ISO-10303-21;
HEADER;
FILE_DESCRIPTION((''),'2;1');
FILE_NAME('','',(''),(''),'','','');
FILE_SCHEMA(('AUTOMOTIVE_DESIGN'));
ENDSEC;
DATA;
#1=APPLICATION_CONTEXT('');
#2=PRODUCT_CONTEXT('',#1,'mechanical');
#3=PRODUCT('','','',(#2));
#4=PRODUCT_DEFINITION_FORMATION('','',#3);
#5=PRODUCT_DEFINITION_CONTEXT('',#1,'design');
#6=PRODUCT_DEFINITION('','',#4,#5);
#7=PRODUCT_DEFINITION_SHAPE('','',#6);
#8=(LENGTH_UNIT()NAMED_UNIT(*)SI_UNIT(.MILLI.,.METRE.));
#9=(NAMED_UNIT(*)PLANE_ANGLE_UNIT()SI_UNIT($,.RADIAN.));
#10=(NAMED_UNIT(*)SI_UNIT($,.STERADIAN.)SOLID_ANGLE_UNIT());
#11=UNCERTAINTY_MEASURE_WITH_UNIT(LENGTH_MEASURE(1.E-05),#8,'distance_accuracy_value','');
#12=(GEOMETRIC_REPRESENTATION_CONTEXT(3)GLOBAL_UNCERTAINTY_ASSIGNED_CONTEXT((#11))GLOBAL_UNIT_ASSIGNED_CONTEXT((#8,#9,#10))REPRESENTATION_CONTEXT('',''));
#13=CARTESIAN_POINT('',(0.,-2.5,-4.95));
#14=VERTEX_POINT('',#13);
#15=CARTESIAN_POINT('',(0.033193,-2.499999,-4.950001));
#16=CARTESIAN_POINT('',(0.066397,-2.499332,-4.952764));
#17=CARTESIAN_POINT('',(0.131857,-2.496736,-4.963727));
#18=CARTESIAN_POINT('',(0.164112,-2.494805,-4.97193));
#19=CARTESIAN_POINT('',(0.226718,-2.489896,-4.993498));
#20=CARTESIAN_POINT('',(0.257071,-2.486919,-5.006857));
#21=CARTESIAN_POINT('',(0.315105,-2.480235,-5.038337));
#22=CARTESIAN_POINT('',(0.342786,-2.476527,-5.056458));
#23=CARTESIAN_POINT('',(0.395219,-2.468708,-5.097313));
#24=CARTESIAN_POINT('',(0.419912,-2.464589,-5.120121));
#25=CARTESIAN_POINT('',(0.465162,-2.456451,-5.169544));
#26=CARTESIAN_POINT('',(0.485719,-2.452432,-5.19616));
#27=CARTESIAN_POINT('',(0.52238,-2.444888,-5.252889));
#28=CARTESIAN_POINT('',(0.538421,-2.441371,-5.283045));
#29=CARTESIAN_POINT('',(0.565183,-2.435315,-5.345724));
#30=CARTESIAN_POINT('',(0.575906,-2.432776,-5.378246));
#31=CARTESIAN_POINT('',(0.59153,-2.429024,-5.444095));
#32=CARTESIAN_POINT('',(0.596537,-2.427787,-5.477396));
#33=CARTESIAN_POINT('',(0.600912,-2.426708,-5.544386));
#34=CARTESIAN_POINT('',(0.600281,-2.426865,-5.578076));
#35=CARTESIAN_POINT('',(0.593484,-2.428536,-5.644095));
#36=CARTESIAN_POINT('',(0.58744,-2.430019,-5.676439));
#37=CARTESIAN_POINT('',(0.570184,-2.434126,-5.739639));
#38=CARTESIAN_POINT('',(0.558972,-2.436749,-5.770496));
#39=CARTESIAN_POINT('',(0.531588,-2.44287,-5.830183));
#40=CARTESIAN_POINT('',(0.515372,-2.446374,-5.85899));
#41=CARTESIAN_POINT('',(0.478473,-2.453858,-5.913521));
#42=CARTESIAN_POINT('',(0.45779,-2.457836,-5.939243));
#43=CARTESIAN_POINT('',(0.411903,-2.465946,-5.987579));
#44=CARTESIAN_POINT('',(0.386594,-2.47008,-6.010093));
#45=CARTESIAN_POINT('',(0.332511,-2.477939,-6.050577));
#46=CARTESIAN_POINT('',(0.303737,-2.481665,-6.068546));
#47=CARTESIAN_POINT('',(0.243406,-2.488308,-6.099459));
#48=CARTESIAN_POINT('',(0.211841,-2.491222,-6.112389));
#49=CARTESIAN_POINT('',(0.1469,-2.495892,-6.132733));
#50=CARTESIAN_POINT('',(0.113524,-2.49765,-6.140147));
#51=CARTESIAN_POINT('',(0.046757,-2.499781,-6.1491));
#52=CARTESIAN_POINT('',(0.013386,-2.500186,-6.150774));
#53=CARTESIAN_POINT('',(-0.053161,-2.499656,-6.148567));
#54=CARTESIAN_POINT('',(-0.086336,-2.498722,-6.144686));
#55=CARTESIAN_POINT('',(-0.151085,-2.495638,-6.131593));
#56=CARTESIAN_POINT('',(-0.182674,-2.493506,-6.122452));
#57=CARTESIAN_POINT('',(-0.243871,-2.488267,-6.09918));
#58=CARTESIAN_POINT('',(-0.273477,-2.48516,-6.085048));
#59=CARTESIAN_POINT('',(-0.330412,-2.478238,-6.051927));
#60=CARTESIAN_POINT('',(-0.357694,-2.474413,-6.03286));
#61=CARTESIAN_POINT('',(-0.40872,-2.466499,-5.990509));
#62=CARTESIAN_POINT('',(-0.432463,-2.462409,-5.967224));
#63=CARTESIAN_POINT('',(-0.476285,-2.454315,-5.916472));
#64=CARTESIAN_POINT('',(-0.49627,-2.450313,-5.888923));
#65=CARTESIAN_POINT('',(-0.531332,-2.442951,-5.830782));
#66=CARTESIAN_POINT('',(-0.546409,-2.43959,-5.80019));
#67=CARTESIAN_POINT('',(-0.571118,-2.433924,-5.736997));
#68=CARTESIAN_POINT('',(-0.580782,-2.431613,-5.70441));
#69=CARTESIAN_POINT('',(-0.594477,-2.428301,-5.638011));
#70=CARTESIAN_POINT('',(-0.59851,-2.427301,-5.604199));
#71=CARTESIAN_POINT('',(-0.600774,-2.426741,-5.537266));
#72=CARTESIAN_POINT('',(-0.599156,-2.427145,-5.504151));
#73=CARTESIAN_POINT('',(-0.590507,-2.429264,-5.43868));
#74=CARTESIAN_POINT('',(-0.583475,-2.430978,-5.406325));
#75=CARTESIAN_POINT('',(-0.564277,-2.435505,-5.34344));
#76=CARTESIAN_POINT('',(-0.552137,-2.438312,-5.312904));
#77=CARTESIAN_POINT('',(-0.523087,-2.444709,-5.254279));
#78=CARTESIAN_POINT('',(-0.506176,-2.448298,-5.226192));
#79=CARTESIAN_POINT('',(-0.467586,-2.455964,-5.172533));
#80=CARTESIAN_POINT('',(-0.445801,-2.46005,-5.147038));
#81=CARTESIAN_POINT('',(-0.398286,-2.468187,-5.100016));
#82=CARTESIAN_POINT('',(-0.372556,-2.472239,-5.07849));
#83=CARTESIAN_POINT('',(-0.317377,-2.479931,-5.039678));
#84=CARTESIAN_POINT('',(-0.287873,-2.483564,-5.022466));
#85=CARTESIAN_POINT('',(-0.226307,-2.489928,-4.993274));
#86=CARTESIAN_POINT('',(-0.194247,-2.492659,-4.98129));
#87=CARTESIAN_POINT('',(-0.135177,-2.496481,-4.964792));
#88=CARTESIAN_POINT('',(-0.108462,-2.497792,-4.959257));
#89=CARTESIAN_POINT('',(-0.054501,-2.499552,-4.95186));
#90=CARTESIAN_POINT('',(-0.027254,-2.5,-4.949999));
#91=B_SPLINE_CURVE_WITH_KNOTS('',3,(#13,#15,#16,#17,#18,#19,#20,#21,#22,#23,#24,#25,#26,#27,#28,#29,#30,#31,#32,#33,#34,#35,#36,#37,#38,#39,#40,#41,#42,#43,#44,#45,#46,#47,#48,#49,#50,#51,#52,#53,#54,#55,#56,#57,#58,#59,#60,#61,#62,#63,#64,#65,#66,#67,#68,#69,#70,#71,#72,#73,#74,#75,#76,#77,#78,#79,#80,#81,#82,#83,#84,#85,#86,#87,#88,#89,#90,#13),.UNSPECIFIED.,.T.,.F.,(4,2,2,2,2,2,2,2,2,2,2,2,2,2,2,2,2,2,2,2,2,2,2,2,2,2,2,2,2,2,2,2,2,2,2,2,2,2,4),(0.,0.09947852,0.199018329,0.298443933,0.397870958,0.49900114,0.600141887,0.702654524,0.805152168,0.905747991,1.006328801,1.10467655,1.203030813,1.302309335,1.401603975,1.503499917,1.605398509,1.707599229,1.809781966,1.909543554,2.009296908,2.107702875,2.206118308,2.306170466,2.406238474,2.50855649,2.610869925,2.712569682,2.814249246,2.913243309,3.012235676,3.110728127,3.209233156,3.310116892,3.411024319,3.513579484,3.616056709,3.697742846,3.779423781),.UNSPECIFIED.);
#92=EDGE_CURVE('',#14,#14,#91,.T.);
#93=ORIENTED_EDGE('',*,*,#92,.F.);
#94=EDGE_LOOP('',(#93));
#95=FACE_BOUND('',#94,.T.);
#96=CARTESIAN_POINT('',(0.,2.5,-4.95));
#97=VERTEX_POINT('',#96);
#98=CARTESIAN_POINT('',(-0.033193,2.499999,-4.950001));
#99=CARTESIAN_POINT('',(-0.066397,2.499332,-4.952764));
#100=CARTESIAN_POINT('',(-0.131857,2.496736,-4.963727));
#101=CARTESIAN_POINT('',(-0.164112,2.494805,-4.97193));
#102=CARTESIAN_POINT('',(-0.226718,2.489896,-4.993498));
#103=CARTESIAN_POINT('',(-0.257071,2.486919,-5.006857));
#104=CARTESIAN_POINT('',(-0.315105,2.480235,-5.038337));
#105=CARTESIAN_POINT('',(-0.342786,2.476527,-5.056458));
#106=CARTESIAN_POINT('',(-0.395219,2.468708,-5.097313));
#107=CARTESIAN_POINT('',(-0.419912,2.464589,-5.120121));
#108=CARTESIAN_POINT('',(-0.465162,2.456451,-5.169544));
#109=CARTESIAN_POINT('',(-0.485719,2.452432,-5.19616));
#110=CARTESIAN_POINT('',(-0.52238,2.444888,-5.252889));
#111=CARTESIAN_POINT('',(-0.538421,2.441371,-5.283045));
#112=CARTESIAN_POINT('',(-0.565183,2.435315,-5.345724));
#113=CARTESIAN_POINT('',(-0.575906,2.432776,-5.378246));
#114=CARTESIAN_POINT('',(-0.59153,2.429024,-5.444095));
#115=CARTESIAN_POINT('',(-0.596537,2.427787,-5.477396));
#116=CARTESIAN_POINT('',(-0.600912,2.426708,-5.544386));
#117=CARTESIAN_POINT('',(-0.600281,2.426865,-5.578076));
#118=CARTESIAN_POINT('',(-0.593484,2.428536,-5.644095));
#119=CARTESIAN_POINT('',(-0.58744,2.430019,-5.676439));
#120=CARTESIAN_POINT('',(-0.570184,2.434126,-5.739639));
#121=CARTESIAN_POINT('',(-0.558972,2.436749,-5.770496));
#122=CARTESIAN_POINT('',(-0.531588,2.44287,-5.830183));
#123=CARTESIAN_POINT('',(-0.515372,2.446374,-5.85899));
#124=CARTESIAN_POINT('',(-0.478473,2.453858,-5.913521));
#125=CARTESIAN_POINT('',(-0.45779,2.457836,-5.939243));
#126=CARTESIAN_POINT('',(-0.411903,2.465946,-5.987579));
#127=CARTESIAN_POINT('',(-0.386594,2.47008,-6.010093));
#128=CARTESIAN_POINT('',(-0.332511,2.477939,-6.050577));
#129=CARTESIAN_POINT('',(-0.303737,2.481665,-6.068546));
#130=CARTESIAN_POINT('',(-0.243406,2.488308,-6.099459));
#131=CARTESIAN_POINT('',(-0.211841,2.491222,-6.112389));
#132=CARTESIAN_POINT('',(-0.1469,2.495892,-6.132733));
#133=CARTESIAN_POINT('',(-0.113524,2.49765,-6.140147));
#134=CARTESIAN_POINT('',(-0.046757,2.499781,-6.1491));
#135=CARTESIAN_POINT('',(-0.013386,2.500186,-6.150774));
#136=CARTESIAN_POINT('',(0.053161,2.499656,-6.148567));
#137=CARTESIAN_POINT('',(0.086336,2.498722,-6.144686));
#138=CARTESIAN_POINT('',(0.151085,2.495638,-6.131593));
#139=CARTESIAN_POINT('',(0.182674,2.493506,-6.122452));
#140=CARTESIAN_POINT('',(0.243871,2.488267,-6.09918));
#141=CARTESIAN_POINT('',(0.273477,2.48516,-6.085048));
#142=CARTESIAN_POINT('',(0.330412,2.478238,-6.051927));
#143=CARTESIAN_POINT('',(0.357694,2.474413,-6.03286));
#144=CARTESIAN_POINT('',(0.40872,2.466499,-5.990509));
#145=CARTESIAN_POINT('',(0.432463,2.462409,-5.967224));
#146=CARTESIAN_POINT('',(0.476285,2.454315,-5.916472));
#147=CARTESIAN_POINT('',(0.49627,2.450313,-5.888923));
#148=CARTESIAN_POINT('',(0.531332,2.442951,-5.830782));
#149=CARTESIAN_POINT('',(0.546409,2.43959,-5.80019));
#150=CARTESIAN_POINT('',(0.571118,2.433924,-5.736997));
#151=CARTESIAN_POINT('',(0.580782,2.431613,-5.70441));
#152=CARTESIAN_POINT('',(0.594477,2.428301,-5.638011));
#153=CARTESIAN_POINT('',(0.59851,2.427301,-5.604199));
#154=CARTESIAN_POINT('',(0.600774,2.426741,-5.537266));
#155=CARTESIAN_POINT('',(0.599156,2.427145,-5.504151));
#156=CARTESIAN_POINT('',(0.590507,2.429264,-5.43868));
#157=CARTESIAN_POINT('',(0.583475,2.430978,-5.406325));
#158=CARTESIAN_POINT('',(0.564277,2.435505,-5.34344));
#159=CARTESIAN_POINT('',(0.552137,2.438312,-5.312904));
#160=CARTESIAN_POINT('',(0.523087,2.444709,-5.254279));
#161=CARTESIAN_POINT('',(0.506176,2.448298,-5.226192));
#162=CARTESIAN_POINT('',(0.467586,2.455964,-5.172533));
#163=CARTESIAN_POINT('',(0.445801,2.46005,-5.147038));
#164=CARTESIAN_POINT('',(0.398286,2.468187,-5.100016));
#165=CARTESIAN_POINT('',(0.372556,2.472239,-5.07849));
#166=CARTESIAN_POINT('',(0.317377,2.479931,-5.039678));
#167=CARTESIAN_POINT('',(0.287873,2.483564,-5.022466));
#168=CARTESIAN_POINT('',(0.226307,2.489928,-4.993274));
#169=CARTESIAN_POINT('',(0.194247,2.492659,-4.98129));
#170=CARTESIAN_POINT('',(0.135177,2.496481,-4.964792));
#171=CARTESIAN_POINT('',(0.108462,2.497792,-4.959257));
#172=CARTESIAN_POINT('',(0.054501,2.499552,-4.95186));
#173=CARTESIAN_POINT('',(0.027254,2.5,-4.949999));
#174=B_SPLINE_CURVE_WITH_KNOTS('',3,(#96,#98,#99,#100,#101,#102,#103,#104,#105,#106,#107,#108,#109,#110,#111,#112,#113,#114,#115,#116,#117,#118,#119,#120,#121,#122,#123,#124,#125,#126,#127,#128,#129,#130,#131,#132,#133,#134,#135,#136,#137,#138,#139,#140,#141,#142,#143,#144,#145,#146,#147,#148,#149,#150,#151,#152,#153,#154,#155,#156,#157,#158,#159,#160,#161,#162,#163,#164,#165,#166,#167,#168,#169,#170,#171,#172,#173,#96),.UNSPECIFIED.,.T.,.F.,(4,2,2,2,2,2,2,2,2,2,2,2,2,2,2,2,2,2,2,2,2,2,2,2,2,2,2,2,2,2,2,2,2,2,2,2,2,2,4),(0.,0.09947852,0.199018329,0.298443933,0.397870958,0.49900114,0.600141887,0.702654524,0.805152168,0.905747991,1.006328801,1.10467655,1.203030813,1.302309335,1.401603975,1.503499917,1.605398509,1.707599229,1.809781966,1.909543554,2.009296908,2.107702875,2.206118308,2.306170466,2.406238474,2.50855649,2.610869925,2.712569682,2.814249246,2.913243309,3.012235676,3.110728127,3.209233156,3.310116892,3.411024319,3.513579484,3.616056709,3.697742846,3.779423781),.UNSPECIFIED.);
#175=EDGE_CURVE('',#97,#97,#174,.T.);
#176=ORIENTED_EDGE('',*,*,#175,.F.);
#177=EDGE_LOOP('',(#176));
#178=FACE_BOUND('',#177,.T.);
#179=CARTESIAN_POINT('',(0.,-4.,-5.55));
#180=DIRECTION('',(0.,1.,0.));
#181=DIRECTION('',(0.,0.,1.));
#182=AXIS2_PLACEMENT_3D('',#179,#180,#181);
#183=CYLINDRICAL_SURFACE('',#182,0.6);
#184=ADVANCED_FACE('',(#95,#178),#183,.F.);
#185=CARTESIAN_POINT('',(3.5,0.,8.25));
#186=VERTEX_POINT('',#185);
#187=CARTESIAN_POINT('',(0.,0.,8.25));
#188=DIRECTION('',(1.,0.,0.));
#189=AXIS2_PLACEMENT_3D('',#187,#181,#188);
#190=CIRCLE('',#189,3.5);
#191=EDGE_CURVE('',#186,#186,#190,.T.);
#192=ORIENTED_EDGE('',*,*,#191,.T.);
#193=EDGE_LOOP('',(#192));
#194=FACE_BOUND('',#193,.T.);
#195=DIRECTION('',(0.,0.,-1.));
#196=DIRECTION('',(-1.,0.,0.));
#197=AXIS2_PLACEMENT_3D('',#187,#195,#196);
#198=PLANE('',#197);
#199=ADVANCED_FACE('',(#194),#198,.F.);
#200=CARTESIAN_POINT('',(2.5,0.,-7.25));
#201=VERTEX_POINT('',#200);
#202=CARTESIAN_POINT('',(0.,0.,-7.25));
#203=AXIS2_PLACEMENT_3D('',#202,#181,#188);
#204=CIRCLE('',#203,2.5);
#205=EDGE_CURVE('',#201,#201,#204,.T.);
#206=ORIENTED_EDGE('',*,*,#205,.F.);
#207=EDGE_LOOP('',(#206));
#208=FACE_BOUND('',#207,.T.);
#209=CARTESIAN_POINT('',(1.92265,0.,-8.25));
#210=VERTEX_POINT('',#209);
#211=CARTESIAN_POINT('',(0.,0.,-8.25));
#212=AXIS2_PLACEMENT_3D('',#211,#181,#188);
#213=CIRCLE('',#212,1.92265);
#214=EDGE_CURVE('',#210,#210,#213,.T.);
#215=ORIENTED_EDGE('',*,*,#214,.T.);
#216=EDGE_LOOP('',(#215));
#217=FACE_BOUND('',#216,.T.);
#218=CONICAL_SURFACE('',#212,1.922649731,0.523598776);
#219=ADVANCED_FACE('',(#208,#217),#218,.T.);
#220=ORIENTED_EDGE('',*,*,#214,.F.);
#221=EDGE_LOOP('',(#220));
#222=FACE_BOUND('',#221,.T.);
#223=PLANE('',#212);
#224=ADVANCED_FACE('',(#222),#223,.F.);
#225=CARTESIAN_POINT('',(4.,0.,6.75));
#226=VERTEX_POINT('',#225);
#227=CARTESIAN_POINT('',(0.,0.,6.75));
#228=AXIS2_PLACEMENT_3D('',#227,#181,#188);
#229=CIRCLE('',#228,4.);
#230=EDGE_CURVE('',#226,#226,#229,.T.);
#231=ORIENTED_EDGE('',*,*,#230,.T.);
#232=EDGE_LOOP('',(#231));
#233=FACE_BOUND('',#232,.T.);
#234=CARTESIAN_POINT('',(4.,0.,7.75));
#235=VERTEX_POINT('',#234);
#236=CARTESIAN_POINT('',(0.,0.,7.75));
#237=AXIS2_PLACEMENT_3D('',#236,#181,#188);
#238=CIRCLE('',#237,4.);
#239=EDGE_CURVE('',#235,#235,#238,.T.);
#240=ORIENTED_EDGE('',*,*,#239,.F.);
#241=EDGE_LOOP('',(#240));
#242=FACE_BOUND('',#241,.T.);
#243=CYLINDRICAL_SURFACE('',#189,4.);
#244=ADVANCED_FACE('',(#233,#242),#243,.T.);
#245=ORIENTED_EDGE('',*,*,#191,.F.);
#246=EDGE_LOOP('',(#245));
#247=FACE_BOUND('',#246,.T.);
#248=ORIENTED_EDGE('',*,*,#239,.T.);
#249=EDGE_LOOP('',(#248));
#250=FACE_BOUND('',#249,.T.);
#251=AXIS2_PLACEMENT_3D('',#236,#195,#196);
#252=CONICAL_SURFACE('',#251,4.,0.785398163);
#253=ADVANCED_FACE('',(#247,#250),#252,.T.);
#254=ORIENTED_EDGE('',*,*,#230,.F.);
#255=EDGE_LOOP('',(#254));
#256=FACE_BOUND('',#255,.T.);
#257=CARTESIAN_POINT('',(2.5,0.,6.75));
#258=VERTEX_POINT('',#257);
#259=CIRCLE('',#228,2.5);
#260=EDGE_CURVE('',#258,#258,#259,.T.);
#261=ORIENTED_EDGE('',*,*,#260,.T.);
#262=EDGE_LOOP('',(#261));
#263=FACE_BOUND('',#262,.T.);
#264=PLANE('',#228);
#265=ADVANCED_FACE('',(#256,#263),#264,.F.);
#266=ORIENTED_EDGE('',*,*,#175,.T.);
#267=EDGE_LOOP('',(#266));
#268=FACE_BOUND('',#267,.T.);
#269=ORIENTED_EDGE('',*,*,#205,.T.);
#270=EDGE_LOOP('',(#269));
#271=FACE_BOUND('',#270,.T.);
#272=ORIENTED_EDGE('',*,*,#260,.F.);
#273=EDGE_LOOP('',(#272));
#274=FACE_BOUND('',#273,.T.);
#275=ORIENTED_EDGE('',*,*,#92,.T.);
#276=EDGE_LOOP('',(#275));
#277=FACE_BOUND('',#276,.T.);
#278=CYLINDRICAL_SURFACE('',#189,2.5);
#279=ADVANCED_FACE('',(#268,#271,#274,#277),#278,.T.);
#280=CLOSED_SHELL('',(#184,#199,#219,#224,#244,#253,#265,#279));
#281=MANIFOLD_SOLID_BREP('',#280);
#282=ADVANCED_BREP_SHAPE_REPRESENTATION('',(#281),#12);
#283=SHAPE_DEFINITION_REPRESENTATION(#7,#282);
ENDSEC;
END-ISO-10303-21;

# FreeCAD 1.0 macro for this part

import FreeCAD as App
import Part
import Sketcher
from FreeCAD import Vector
Q = App.Units.Quantity


def add_polygon(sketch, points):
    """Adds a closed chain of lines whose ends are joined by coincident constraints."""
    first, n = sketch.GeometryCount, len(points)
    for a, b in zip(points, points[1:] + points[:1]):
        sketch.addGeometry(Part.LineSegment(App.Vector(*a, 0), App.Vector(*b, 0)), False)
    for i in range(n):
        sketch.addConstraint(Sketcher.Constraint("Coincident", first + i, 2, first + (i + 1) % n, 1))

doc = App.newDocument("Part")
body = doc.addObject("PartDesign::Body", "Body")

sketch1 = body.newObject("Sketcher::SketchObject", "Sketch")
sketch1.AttachmentSupport = (doc.getObject("XZ_Plane"), [""])
sketch1.MapMode = "FlatFace"
add_polygon(sketch1, [(0, 8.25), (3.5, 8.25), (4, 7.75), (4, 6.75), (2.5, 6.75), (2.5, -7.25), (1.92265, -8.25), (0, -8.25)])
sketch1.addConstraint([
    Sketcher.Constraint("Horizontal", 0),
    Sketcher.Constraint("Vertical", 2),
    Sketcher.Constraint("Horizontal", 3),
    Sketcher.Constraint("Vertical", 4),
    Sketcher.Constraint("Horizontal", 6),
    Sketcher.Constraint("Vertical", 7),
    Sketcher.Constraint("Symmetric", 6, 2, 7, 2, -1, 1),
    Sketcher.Constraint("DistanceY", 2, 2, 2, 1, Q("1 mm")),
    Sketcher.Constraint("DistanceY", 4, 2, 4, 1, Q("14 mm")),
    Sketcher.Constraint("Angle", 1, Q("-45 deg")),
    Sketcher.Constraint("Angle", 5, Q("-120 deg")),
    Sketcher.Constraint("DistanceX", 0, 1, 0, 2, Q("3.5 mm")),
    Sketcher.Constraint("DistanceX", 3, 2, 3, 1, Q("1.5 mm")),
    Sketcher.Constraint("DistanceY", 7, 1, 7, 2, Q("16.5 mm")),
    Sketcher.Constraint("DistanceX", -1, 1, 1, 2, Q("4 mm")),
])
revolution = body.newObject("PartDesign::Revolution", "Revolution")
revolution.Profile = sketch1
revolution.ReferenceAxis = (sketch1, ["V_Axis"])
revolution.Angle = 360

sketch2 = body.newObject("Sketcher::SketchObject", "Sketch001")
sketch2.AttachmentSupport = (doc.getObject("XZ_Plane"), [""])
sketch2.MapMode = "FlatFace"
sketch2.addGeometry(Part.Circle(Vector(0, -5.55, 0), Vector(0, 0, 1), 0.6), False)
sketch2.addConstraint([
    Sketcher.Constraint("PointOnObject", 0, 3, -2),
    Sketcher.Constraint("Diameter", 0, Q("1.2 mm")),
    Sketcher.Constraint("DistanceY", 0, 3, -1, 1, Q("5.55 mm")),
])
pocket1 = body.newObject("PartDesign::Pocket", "Pocket")
pocket1.Profile = sketch2
pocket1.Type = "ThroughAll"
pocket1.Midplane = True

doc.recompute()
